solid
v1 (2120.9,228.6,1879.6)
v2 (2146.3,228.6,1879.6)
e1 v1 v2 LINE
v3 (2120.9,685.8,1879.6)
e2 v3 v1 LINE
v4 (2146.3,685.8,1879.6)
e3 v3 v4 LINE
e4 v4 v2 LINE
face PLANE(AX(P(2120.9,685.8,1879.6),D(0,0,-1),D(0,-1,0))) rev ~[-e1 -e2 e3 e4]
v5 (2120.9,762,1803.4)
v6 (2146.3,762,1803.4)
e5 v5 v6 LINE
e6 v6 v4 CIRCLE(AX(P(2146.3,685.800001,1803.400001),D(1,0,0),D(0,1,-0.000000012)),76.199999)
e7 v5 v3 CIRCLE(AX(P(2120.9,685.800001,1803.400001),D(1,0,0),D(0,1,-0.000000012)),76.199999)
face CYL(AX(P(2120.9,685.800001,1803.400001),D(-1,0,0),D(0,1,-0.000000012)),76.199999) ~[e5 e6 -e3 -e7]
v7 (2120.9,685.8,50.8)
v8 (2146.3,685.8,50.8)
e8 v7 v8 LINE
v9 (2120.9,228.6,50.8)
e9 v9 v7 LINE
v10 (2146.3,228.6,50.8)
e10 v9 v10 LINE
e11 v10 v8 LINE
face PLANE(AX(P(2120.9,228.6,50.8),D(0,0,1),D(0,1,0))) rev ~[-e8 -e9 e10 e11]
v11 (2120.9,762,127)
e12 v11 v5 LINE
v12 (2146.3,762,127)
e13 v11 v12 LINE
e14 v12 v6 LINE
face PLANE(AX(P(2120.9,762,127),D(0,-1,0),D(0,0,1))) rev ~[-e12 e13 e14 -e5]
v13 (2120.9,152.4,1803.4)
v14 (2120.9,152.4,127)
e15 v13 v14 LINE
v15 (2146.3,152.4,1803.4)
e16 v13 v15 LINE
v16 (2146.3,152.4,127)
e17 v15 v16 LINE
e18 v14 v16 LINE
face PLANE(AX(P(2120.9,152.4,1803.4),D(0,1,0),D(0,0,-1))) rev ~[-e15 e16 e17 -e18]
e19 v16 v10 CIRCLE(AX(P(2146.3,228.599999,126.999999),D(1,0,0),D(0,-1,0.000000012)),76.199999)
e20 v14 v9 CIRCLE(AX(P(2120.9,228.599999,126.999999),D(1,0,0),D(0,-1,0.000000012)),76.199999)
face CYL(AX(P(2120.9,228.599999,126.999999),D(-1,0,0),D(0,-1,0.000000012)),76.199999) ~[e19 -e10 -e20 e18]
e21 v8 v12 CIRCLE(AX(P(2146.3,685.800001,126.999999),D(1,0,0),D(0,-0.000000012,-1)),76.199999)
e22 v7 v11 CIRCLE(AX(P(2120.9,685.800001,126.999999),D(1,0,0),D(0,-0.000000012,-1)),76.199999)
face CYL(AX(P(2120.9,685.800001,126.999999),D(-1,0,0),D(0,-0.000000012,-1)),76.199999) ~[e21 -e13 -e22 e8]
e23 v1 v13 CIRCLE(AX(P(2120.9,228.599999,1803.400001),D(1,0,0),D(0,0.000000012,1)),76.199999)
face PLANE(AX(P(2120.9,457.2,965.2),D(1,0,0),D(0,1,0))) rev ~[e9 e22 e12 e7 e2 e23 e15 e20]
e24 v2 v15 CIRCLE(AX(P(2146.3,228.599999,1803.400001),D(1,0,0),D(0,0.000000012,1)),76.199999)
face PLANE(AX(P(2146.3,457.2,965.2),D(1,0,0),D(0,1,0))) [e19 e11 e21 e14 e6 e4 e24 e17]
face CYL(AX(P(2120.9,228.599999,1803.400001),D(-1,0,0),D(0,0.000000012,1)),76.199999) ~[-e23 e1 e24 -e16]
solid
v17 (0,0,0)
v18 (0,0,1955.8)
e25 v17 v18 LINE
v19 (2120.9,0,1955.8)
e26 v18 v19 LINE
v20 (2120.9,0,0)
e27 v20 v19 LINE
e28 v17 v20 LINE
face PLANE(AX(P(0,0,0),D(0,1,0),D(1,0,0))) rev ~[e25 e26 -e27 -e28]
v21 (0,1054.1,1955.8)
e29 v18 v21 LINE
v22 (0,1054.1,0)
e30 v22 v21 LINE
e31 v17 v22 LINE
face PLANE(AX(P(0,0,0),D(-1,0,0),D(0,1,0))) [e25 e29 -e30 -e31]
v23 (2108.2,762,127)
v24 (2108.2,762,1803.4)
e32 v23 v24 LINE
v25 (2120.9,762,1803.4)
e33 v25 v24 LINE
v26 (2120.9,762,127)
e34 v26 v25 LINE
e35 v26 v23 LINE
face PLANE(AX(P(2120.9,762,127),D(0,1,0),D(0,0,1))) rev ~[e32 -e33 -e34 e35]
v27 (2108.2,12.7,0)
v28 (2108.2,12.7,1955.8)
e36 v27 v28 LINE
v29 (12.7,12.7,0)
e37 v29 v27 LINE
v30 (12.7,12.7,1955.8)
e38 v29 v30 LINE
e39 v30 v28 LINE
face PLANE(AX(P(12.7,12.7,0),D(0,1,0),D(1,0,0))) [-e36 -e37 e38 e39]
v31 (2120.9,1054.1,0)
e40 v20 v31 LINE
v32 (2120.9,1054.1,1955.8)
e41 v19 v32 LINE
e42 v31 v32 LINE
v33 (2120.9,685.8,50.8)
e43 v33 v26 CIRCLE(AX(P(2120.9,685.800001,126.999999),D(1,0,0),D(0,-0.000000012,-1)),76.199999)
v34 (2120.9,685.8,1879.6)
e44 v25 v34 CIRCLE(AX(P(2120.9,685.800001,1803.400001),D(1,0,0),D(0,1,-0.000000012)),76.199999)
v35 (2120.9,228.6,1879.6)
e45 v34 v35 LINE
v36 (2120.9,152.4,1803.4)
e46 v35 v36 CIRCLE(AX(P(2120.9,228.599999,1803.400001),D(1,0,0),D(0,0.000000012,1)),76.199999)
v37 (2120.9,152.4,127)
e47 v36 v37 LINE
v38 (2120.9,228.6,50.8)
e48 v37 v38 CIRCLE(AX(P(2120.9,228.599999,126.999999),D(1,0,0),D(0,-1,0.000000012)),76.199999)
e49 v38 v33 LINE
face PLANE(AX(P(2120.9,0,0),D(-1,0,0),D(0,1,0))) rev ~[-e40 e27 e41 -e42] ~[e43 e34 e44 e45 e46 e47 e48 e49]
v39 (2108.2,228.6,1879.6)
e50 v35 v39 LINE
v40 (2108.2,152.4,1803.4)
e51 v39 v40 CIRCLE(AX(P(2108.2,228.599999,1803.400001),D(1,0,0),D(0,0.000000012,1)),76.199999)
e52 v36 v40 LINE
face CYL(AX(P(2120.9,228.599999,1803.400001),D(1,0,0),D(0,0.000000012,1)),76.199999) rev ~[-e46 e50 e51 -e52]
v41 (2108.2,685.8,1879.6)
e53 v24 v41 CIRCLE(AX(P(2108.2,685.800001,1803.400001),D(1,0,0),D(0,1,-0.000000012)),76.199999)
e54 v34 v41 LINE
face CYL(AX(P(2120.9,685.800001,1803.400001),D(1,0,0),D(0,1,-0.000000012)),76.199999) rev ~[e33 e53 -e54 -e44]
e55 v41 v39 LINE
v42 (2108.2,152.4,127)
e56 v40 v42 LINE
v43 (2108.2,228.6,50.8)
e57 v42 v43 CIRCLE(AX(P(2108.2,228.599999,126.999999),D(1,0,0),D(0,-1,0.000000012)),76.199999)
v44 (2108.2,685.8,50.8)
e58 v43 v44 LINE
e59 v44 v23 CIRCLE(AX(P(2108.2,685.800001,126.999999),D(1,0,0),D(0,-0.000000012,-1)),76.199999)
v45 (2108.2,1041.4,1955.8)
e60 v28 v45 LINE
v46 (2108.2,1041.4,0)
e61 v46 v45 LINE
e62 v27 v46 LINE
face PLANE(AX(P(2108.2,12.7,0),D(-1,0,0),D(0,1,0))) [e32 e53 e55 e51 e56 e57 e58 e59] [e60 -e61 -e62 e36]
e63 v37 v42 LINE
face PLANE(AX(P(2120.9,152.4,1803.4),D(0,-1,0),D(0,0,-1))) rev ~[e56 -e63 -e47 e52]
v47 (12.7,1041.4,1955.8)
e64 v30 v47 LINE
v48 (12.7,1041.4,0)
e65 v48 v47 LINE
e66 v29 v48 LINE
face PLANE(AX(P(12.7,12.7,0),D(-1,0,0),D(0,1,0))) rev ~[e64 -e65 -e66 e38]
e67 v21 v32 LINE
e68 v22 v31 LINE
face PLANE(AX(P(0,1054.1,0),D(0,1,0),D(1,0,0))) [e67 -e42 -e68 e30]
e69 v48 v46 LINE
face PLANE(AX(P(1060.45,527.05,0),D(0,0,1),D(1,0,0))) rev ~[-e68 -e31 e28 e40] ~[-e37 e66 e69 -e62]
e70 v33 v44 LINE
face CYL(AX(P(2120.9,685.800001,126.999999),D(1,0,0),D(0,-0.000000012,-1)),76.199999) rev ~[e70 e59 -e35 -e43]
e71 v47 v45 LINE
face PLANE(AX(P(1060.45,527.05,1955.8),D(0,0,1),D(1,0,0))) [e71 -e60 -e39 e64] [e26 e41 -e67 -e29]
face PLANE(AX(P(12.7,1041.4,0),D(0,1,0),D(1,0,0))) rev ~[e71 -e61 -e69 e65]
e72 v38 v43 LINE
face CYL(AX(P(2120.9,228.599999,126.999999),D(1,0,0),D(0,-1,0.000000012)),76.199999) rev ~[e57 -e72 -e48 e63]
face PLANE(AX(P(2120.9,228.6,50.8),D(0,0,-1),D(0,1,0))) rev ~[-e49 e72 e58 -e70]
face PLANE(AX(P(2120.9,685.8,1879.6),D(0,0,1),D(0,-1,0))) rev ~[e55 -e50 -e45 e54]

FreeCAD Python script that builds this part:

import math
import FreeCAD as App
import Part
import Sketcher
from FreeCAD import Vector
Q = App.Units.Quantity

doc = App.newDocument("Part")
body = doc.addObject("PartDesign::Body", "Body")

# Sketch on XY plane
sketch1 = body.newObject("Sketcher::SketchObject", "Sketch")
sketch1.AttachmentSupport = (doc.getObject("XY_Plane"), [""])
sketch1.MapMode = "FlatFace"
sketch1.addGeometry([
    Part.LineSegment(Vector(0, 1054, 0), Vector(0, 0, 0)),  # 0
    Part.LineSegment(Vector(0, 0, 0), Vector(2121, 0, 0)),  # 1
    Part.LineSegment(Vector(2121, 0, 0), Vector(2121, 1054, 0)),  # 2
    Part.LineSegment(Vector(2121, 1054, 0), Vector(0, 1054, 0)),  # 3
    Part.LineSegment(Vector(2108, 13, 0), Vector(13, 13, 0)),  # 4
    Part.LineSegment(Vector(13, 13, 0), Vector(13, 1041, 0)),  # 5
    Part.LineSegment(Vector(13, 1041, 0), Vector(2108, 1041, 0)),  # 6
    Part.LineSegment(Vector(2108, 1041, 0), Vector(2108, 13, 0)),  # 7
], False)
sketch1.addConstraint([
    Sketcher.Constraint("Coincident", 0, 2, 1, 1),
    Sketcher.Constraint("Coincident", 1, 2, 2, 1),
    Sketcher.Constraint("Coincident", 2, 2, 3, 1),
    Sketcher.Constraint("Coincident", 3, 2, 0, 1),
    Sketcher.Constraint("Coincident", 4, 2, 5, 1),
    Sketcher.Constraint("Coincident", 5, 2, 6, 1),
    Sketcher.Constraint("Coincident", 6, 2, 7, 1),
    Sketcher.Constraint("Coincident", 7, 2, 4, 1),
    Sketcher.Constraint("Vertical", 0),
    Sketcher.Constraint("Horizontal", 1),
    Sketcher.Constraint("Vertical", 2),
    Sketcher.Constraint("Horizontal", 3),
    Sketcher.Constraint("Horizontal", 4),
    Sketcher.Constraint("Vertical", 5),
    Sketcher.Constraint("Horizontal", 6),
    Sketcher.Constraint("Vertical", 7),
    Sketcher.Constraint("Coincident", 0, 2, -1, 1),
    Sketcher.Constraint("DistanceX", 1, 1, 1, 2, Q("83.5 in")),
    Sketcher.Constraint("DistanceX", 4, 2, 4, 1, Q("82.5 in")),
    Sketcher.Constraint("DistanceY", 0, 2, 0, 1, Q("41.5 in")),
    Sketcher.Constraint("DistanceY", 5, 1, 5, 2, Q("40.5 in")),
    Sketcher.Constraint("DistanceY", -1, 1, 5, 2, Q("41 in")),
    Sketcher.Constraint("DistanceX", -1, 1, 6, 2, Q("83 in")),
])
pad1 = body.newObject("PartDesign::Pad", "Pad")
pad1.Profile = sketch1
pad1.Length = Q("77 in")

# Sketch on YZ plane
sketch2 = body.newObject("Sketcher::SketchObject", "Sketch001")
sketch2.AttachmentSupport = (doc.getObject("YZ_Plane"), [""])
sketch2.MapMode = "FlatFace"
sketch2.AttachmentOffset = App.Placement(Vector(0, 0, 83.5 * 25.4), App.Rotation())
sketch2.addGeometry([
    Part.ArcOfCircle(Part.Circle(Vector(229, 127, 0), Vector(0, 0, 1), 76), math.radians(180), math.radians(270)),  # 0
    Part.LineSegment(Vector(229, 51, 0), Vector(686, 51, 0)),  # 1
    Part.ArcOfCircle(Part.Circle(Vector(686, 127, 0), Vector(0, 0, 1), 76), math.radians(-90), math.radians(0)),  # 2
    Part.LineSegment(Vector(762, 127, 0), Vector(762, 1803, 0)),  # 3
    Part.ArcOfCircle(Part.Circle(Vector(686, 1803, 0), Vector(0, 0, 1), 76), math.radians(0), math.radians(90)),  # 4
    Part.LineSegment(Vector(686, 1880, 0), Vector(229, 1880, 0)),  # 5
    Part.ArcOfCircle(Part.Circle(Vector(229, 1803, 0), Vector(0, 0, 1), 76), math.radians(90), math.radians(180)),  # 6
    Part.LineSegment(Vector(152, 1803, 0), Vector(152, 127, 0)),  # 7
], False)
sketch2.addConstraint([
    Sketcher.Constraint("Tangent", 0, 2, 1, 1),
    Sketcher.Constraint("Tangent", 1, 2, 2, 1),
    Sketcher.Constraint("Tangent", 2, 2, 3, 1),
    Sketcher.Constraint("Tangent", 3, 2, 4, 1),
    Sketcher.Constraint("Tangent", 4, 2, 5, 1),
    Sketcher.Constraint("Tangent", 5, 2, 6, 1),
    Sketcher.Constraint("Tangent", 6, 2, 7, 1),
    Sketcher.Constraint("Tangent", 7, 2, 0, 1),
    Sketcher.Constraint("Horizontal", 1),
    Sketcher.Constraint("Vertical", 3),
    Sketcher.Constraint("Horizontal", 5),
    Sketcher.Constraint("Vertical", 7),
    Sketcher.Constraint("Equal", 0, 2),
    Sketcher.Constraint("Equal", 2, 4),
    Sketcher.Constraint("Equal", 4, 6),
    Sketcher.Constraint("Radius", 0, Q("3 in")),
    Sketcher.Constraint("DistanceX", 1, 1, 1, 2, Q("18 in")),
    Sketcher.Constraint("DistanceY", 3, 1, 3, 2, Q("66 in")),
    Sketcher.Constraint("DistanceX", -1, 1, 0, 3, Q("9 in")),
    Sketcher.Constraint("DistanceY", -1, 1, 0, 3, Q("5 in")),
])
pocket1 = body.newObject("PartDesign::Pocket", "Pocket")
pocket1.Profile = sketch2
pocket1.Length = Q("0.5 in")
body2 = doc.addObject("PartDesign::Body", "Body001")

# Sketch on YZ plane
sketch3 = body2.newObject("Sketcher::SketchObject", "Sketch002")
sketch3.AttachmentSupport = (doc.getObject("YZ_Plane001"), [""])
sketch3.MapMode = "FlatFace"
sketch3.AttachmentOffset = App.Placement(Vector(0, 0, 83.5 * 25.4), App.Rotation())
sketch3.addGeometry([
    Part.ArcOfCircle(Part.Circle(Vector(229, 1803, 0), Vector(0, 0, 1), 76), math.radians(90), math.radians(180)),  # 0
    Part.LineSegment(Vector(152, 1803, 0), Vector(152, 127, 0)),  # 1
    Part.ArcOfCircle(Part.Circle(Vector(229, 127, 0), Vector(0, 0, 1), 76), math.radians(180), math.radians(270)),  # 2
    Part.LineSegment(Vector(229, 51, 0), Vector(686, 51, 0)),  # 3
    Part.ArcOfCircle(Part.Circle(Vector(686, 127, 0), Vector(0, 0, 1), 76), math.radians(-90), math.radians(0)),  # 4
    Part.LineSegment(Vector(762, 127, 0), Vector(762, 1803, 0)),  # 5
    Part.ArcOfCircle(Part.Circle(Vector(686, 1803, 0), Vector(0, 0, 1), 76), math.radians(0), math.radians(90)),  # 6
    Part.LineSegment(Vector(686, 1880, 0), Vector(229, 1880, 0)),  # 7
], False)
sketch3.addConstraint([
    Sketcher.Constraint("Tangent", 0, 2, 1, 1),
    Sketcher.Constraint("Tangent", 1, 2, 2, 1),
    Sketcher.Constraint("Tangent", 2, 2, 3, 1),
    Sketcher.Constraint("Tangent", 3, 2, 4, 1),
    Sketcher.Constraint("Tangent", 4, 2, 5, 1),
    Sketcher.Constraint("Tangent", 5, 2, 6, 1),
    Sketcher.Constraint("Tangent", 6, 2, 7, 1),
    Sketcher.Constraint("Tangent", 7, 2, 0, 1),
    Sketcher.Constraint("Vertical", 1),
    Sketcher.Constraint("Horizontal", 3),
    Sketcher.Constraint("Vertical", 5),
    Sketcher.Constraint("Horizontal", 7),
    Sketcher.Constraint("Equal", 0, 2),
    Sketcher.Constraint("Equal", 2, 4),
    Sketcher.Constraint("Equal", 4, 6),
    Sketcher.Constraint("Radius", 0, Q("3 in")),
    Sketcher.Constraint("DistanceX", 3, 1, 3, 2, Q("18 in")),
    Sketcher.Constraint("DistanceY", 1, 2, 1, 1, Q("66 in")),
    Sketcher.Constraint("DistanceX", -1, 1, 0, 3, Q("9 in")),
    Sketcher.Constraint("DistanceY", -1, 1, 0, 3, Q("71 in")),
])
pad2 = body2.newObject("PartDesign::Pad", "Pad001")
pad2.Profile = sketch3
pad2.Length = Q("1 in")

doc.recompute()
